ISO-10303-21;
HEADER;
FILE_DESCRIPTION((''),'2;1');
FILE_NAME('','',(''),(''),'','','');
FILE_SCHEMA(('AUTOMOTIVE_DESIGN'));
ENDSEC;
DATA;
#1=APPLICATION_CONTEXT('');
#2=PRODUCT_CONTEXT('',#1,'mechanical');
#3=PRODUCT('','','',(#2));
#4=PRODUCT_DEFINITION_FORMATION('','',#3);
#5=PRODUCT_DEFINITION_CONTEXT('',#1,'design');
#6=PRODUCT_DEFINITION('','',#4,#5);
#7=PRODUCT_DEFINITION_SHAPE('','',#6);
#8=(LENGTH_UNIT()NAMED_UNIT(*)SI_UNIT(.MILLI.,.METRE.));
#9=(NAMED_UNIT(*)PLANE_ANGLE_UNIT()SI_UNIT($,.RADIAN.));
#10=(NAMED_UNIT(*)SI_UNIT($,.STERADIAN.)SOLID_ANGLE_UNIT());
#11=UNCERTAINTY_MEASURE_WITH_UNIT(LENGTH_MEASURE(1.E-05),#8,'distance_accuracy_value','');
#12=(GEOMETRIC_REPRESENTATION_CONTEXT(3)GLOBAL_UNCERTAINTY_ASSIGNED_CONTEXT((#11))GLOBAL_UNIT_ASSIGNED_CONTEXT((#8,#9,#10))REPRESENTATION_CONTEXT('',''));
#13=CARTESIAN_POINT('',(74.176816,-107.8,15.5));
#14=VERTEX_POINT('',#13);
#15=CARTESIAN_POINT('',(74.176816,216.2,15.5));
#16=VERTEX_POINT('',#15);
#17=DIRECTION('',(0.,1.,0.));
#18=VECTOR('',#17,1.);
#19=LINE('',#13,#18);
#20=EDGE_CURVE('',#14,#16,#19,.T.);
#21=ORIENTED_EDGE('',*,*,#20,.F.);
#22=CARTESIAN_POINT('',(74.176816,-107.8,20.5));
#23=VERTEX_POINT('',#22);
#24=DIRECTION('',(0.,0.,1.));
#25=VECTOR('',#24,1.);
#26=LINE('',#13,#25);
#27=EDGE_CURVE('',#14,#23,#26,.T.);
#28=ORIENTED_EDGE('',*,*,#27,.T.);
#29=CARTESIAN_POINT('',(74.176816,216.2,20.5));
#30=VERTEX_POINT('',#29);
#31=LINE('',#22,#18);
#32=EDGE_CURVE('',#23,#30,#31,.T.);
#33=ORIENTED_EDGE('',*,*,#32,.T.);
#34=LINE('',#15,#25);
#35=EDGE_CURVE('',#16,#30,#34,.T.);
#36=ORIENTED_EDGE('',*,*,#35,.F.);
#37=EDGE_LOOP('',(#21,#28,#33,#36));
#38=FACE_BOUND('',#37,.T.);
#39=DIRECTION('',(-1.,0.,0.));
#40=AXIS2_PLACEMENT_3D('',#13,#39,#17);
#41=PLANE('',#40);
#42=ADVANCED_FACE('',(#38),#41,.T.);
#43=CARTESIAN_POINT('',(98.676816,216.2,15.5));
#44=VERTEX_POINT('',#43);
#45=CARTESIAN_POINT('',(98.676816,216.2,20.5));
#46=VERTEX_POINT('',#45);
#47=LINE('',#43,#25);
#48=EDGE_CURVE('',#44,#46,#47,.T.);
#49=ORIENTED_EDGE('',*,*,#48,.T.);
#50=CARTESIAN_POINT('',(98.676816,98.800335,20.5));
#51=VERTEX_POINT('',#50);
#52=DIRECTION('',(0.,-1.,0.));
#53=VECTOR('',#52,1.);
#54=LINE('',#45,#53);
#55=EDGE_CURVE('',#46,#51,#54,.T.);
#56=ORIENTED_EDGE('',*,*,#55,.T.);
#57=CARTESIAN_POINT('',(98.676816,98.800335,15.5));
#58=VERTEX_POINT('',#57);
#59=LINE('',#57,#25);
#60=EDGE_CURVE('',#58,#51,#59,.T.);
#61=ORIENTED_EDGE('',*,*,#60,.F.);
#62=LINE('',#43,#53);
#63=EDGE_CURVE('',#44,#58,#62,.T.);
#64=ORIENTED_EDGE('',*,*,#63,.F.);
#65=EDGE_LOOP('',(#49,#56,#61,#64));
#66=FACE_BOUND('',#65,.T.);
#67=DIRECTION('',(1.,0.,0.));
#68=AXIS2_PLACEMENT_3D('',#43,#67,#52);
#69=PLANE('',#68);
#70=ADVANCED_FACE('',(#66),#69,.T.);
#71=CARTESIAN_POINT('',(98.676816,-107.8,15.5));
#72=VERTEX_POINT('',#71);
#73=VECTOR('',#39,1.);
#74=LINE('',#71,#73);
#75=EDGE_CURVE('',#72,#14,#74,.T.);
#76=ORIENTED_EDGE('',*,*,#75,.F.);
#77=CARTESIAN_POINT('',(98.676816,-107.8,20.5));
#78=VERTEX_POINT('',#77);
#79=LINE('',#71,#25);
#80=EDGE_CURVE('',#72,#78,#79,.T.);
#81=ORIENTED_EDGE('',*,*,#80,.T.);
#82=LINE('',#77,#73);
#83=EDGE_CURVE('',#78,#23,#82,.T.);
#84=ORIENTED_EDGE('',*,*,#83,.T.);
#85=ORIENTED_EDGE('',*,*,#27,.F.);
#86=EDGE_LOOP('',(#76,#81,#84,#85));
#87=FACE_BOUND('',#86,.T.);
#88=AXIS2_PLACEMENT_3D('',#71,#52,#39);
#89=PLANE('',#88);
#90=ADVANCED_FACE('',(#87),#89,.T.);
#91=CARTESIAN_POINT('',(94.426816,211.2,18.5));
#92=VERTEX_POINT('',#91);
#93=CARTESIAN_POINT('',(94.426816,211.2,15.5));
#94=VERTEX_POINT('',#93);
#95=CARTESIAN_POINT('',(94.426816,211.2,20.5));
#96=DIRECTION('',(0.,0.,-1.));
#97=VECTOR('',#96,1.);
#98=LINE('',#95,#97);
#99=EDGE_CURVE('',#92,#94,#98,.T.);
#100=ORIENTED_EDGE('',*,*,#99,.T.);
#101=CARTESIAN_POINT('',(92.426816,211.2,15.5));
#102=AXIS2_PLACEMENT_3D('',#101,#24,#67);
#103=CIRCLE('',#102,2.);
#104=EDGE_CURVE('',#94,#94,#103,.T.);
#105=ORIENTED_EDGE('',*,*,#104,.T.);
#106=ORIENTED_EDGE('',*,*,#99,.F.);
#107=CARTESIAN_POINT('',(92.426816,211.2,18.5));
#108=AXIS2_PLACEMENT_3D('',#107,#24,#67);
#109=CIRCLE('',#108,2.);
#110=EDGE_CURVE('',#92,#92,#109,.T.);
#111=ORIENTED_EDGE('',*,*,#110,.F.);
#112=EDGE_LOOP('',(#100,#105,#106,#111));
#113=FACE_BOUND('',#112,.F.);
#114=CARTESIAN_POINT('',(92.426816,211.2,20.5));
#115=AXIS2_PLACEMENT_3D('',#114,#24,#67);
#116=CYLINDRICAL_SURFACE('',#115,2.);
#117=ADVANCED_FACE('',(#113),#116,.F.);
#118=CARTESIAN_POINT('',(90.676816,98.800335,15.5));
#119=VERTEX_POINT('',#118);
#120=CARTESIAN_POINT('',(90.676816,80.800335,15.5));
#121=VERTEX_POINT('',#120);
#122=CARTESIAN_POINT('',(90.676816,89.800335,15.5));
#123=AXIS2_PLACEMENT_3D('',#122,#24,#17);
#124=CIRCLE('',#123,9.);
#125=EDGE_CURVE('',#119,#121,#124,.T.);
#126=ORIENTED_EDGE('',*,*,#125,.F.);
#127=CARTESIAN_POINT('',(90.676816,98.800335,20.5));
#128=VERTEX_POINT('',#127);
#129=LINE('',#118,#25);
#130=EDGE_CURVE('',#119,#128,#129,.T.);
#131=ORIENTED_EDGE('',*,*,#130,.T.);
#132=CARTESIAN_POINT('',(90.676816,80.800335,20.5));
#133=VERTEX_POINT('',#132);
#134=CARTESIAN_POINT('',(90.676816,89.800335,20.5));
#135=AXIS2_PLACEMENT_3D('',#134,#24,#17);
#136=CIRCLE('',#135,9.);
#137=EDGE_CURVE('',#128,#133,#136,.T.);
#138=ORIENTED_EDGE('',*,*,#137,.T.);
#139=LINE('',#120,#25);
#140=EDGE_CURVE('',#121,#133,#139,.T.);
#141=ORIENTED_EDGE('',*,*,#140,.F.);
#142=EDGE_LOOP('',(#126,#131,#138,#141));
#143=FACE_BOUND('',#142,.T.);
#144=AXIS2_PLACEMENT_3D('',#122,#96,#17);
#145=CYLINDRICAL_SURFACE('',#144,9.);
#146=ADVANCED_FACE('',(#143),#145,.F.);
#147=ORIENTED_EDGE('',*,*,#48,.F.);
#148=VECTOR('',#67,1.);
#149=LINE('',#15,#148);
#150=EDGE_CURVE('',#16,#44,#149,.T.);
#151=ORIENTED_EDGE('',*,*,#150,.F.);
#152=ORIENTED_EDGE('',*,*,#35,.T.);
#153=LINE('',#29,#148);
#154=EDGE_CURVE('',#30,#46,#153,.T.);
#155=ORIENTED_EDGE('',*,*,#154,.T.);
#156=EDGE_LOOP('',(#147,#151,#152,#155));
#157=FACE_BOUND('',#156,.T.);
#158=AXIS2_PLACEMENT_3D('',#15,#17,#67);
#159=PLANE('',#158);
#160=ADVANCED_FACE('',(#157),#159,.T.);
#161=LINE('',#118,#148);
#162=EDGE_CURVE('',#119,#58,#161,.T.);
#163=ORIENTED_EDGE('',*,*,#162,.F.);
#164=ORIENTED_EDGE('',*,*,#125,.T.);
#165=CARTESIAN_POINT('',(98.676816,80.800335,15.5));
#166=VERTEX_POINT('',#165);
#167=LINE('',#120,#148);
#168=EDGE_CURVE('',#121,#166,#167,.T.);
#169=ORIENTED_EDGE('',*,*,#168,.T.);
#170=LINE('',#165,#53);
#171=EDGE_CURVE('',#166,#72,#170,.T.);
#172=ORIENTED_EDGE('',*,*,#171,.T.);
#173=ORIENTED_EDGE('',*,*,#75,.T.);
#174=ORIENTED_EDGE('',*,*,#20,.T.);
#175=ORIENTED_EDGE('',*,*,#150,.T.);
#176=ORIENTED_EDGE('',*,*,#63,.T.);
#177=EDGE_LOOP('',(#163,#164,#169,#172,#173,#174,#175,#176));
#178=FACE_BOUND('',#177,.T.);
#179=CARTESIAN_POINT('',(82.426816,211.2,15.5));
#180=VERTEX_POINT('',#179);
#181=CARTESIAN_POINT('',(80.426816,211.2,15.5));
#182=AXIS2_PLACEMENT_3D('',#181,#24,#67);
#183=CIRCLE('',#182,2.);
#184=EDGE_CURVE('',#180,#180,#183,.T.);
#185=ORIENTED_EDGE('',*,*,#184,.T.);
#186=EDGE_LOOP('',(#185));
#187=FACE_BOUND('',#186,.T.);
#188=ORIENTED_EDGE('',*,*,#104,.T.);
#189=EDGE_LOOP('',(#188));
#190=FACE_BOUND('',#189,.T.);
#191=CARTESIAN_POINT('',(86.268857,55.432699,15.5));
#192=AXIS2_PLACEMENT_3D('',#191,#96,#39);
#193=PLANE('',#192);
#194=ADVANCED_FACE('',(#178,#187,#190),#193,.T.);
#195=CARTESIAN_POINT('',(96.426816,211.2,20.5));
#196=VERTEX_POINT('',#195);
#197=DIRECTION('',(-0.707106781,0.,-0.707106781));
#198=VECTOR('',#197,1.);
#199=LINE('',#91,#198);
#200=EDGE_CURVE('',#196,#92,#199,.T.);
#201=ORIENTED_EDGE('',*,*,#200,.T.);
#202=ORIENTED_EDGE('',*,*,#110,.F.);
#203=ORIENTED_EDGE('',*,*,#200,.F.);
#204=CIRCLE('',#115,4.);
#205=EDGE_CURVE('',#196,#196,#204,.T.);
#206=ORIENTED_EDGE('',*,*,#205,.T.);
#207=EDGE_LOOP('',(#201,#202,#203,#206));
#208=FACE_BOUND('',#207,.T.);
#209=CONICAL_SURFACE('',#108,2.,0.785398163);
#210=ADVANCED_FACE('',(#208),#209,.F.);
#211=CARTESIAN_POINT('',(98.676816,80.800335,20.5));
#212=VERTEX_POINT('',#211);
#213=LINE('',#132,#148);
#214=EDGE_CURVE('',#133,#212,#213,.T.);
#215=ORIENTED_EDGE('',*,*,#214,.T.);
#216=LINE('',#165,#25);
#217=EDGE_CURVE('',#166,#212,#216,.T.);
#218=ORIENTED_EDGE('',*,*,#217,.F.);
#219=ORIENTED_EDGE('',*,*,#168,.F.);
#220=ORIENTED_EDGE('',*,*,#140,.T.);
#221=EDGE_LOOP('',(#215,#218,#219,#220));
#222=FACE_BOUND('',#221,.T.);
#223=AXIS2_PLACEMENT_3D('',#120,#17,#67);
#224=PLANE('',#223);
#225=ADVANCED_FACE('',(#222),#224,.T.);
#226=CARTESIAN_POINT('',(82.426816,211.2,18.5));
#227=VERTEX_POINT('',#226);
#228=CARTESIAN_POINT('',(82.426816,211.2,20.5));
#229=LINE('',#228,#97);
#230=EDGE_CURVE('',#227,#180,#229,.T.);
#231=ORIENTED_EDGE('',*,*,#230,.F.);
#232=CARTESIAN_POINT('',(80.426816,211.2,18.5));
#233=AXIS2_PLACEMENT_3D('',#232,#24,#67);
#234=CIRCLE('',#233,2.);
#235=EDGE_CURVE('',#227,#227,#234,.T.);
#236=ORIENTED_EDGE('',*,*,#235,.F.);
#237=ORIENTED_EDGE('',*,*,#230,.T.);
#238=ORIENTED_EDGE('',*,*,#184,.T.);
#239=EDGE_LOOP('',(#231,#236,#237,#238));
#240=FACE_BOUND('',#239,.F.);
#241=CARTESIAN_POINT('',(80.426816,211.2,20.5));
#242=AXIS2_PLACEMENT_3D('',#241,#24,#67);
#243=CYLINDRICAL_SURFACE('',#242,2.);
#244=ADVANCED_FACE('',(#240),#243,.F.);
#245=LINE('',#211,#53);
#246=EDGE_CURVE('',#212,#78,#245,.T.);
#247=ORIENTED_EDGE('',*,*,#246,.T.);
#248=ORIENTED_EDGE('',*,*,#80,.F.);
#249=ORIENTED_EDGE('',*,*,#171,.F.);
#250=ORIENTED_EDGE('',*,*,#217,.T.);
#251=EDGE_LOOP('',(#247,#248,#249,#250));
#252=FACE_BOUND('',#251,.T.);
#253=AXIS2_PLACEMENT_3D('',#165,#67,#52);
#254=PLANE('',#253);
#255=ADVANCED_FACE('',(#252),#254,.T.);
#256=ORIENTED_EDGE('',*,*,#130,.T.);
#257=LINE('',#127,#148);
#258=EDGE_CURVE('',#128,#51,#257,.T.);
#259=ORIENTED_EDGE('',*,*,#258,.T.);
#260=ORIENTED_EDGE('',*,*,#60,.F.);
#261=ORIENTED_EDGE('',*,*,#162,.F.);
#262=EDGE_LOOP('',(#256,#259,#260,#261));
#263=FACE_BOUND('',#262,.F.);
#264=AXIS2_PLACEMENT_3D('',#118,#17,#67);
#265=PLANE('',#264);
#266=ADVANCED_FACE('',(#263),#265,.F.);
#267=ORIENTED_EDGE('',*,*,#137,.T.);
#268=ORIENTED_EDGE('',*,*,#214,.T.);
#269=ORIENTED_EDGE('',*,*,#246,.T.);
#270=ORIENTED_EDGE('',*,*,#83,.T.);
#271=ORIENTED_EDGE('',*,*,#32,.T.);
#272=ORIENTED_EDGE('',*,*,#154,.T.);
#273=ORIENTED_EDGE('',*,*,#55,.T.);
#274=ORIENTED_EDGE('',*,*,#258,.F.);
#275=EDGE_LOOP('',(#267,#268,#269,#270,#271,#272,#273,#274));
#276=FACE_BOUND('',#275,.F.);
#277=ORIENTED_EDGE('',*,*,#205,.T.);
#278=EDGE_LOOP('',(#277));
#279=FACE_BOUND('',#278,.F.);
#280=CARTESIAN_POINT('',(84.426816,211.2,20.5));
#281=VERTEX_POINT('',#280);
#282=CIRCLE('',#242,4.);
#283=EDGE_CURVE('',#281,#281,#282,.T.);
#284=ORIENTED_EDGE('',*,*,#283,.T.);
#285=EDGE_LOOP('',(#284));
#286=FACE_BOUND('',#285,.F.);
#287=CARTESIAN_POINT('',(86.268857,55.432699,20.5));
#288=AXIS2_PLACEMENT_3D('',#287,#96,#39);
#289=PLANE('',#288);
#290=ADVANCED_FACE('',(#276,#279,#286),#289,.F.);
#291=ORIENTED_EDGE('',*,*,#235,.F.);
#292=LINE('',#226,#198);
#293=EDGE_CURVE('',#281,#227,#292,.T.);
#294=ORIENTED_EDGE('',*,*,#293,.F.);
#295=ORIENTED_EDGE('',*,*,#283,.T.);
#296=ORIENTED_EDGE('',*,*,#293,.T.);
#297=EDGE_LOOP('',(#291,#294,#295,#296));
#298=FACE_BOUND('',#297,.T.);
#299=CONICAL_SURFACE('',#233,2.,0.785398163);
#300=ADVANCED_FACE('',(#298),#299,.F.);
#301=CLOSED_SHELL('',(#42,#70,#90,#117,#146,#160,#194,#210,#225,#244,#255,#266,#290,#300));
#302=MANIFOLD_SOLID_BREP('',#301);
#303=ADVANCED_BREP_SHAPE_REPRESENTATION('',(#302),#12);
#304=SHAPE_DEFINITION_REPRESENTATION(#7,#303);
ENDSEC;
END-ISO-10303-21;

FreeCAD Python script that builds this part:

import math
import FreeCAD as App
import Part
import Sketcher


def edges_at(feature, points):
    """Names of the edges that pass closest to the given points."""
    edges = feature.Shape.Edges
    near = lambda p: min(range(len(edges)), key=lambda i: edges[i].distToShape(Part.Vertex(*p))[0])
    return sorted({f"Edge{near(p) + 1}" for p in points})

doc = App.newDocument("Part")
body = doc.addObject("PartDesign::Body", "Body")

sketch1 = body.newObject("Sketcher::SketchObject", "Sketch")
sketch1.AttachmentSupport = (doc.getObject("XY_Plane"), [""])
sketch1.MapMode = "FlatFace"
sketch1.addGeometry([
    Part.LineSegment(App.Vector(99, -108, 0), App.Vector(99, 81, 0)),
    Part.LineSegment(App.Vector(99, 81, 0), App.Vector(91, 81, 0)),
    Part.ArcOfCircle(Part.Circle(App.Vector(91, 90, 0), App.Vector(0, 0, 1), 9), math.radians(90), math.radians(270)),
    Part.LineSegment(App.Vector(91, 99, 0), App.Vector(99, 99, 0)),
    Part.LineSegment(App.Vector(99, 99, 0), App.Vector(99, 216, 0)),
    Part.LineSegment(App.Vector(99, 216, 0), App.Vector(74, 216, 0)),
    Part.LineSegment(App.Vector(74, 216, 0), App.Vector(74, -108, 0)),
    Part.LineSegment(App.Vector(74, -108, 0), App.Vector(99, -108, 0)),
], False)
sketch1.addConstraint([
    Sketcher.Constraint("Coincident", 0, 2, 1, 1),
    Sketcher.Constraint("Tangent", 1, 2, 2, 2),
    Sketcher.Constraint("Tangent", 2, 1, 3, 1),
    Sketcher.Constraint("Coincident", 3, 2, 4, 1),
    Sketcher.Constraint("Coincident", 4, 2, 5, 1),
    Sketcher.Constraint("Coincident", 5, 2, 6, 1),
    Sketcher.Constraint("Coincident", 6, 2, 7, 1),
    Sketcher.Constraint("Coincident", 7, 2, 0, 1),
    Sketcher.Constraint("Vertical", 0),
    Sketcher.Constraint("Horizontal", 1),
    Sketcher.Constraint("Horizontal", 3),
    Sketcher.Constraint("Vertical", 4),
    Sketcher.Constraint("Horizontal", 5),
    Sketcher.Constraint("Vertical", 6),
    Sketcher.Constraint("Horizontal", 7),
    Sketcher.Constraint("Vertical", 0, 2, 3, 2),
    Sketcher.Constraint("Radius", 2, 9.0),
    Sketcher.Constraint("DistanceX", 1, 2, 1, 1, 8.0),
    Sketcher.Constraint("DistanceY", 6, 2, 6, 1, 324.0),
    Sketcher.Constraint("DistanceX", 5, 2, 5, 1, 24.5),
    Sketcher.Constraint("DistanceY", -1, 1, 4, 2, 216.2),
    Sketcher.Constraint("DistanceY", 0, 1, 0, 2, 188.600335),
    Sketcher.Constraint("DistanceX", -1, 1, 2, 3, 90.676816),
])
pad1 = body.newObject("PartDesign::Pad", "Pad")
pad1.Profile = sketch1
pad1.Length = 5

sketch2 = body.newObject("Sketcher::SketchObject", "Sketch001")
sketch2.AttachmentSupport = (doc.getObject("XY_Plane"), [""])
sketch2.MapMode = "FlatFace"
sketch2.AttachmentOffset = App.Placement(App.Vector(0, 0, 5), App.Rotation())
sketch2.addGeometry([
    Part.Circle(App.Vector(80.4, 211.2, 0), App.Vector(0, 0, 1), 2),
    Part.Circle(App.Vector(92.4, 211.2, 0), App.Vector(0, 0, 1), 2),
], False)
sketch2.addConstraint([
    Sketcher.Constraint("Equal", 0, 1),
    Sketcher.Constraint("Horizontal", 0, 3, 1, 3),
    Sketcher.Constraint("Diameter", 0, 4.0),
    Sketcher.Constraint("DistanceX", 0, 3, 1, 3, 12.0),
    Sketcher.Constraint("DistanceY", -1, 1, 0, 3, 211.2),
    Sketcher.Constraint("DistanceX", -1, 1, 0, 3, 80.426816),
])
pocket1 = body.newObject("PartDesign::Pocket", "Pocket")
pocket1.Profile = sketch2
pocket1.Type = "ThroughAll"
doc.recompute()

chamfer = body.newObject("PartDesign::Chamfer", "Chamfer")
chamfer.Base = (pocket1, edges_at(pocket1, [(78.427, 211.2, 5), (90.427, 211.2, 5)]))
chamfer.Size = 2
body2 = doc.addObject("PartDesign::Body", "Body001")
doc.recompute()

body.Placement = App.Placement(App.Vector(0, 0, 15.5), App.Rotation(App.Vector(0, 0, 1), 0))
boolean = body2.newObject("PartDesign::Boolean", "Boolean")
boolean.Type = "Fuse"
boolean.addObjects([body])

doc.recompute()
